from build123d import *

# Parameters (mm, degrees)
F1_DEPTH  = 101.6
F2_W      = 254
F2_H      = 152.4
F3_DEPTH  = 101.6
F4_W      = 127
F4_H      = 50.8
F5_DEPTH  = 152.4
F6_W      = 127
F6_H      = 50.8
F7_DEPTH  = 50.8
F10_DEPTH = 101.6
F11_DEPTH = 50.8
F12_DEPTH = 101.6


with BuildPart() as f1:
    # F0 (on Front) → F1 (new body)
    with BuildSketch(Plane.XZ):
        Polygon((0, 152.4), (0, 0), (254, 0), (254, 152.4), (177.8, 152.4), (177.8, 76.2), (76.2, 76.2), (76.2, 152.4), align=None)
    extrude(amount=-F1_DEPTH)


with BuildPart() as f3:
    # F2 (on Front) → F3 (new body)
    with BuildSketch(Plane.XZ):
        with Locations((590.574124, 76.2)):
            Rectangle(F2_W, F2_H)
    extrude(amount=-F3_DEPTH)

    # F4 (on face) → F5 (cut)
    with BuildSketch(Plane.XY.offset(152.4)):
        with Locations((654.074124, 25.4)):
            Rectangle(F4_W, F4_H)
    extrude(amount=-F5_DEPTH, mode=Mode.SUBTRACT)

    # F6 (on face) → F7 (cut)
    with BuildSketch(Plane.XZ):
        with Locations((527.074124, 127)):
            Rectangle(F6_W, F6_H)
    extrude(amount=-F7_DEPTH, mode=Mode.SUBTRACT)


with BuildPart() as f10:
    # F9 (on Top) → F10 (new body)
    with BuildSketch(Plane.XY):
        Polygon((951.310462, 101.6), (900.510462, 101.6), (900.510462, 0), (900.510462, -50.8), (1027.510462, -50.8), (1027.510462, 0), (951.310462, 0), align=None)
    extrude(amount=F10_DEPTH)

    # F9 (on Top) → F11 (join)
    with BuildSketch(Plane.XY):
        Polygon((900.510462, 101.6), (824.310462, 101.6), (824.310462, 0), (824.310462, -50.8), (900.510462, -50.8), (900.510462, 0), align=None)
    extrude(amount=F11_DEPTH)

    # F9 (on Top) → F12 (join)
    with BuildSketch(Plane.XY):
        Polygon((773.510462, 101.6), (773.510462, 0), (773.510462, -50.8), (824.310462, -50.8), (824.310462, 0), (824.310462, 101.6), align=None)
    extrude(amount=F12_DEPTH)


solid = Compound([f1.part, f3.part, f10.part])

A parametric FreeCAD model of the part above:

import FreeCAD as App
import Part
import Sketcher

V = App.Vector
Q = App.Units.Quantity


def add_polygon(sketch, points):
    """Adds a closed chain of lines whose ends are joined by coincident constraints."""
    first, n = sketch.GeometryCount, len(points)
    for a, b in zip(points, points[1:] + points[:1]):
        sketch.addGeometry(Part.LineSegment(App.Vector(*a, 0), App.Vector(*b, 0)), False)
    for i in range(n):
        sketch.addConstraint(Sketcher.Constraint("Coincident", first + i, 2, first + (i + 1) % n, 1))

doc = App.newDocument("Part")
body = doc.addObject("PartDesign::Body", "Body")

# Sketch on XZ plane
sketch1 = body.newObject("Sketcher::SketchObject", "Sketch")
sketch1.AttachmentSupport = (doc.getObject("XZ_Plane"), [""])
sketch1.MapMode = "FlatFace"
add_polygon(sketch1, [(0, 152.4), (0, 0), (254, 0), (254, 152.4), (177.8, 152.4), (177.8, 76.2), (76.2, 76.2), (76.2, 152.4)])  # lines 0-7
sketch1.addConstraint([
    Sketcher.Constraint("Vertical", 0),
    Sketcher.Constraint("Horizontal", 1),
    Sketcher.Constraint("Vertical", 2),
    Sketcher.Constraint("Horizontal", 3),
    Sketcher.Constraint("Vertical", 4),
    Sketcher.Constraint("Horizontal", 5),
    Sketcher.Constraint("Vertical", 6),
    Sketcher.Constraint("Horizontal", 7),
    Sketcher.Constraint("Coincident", 0, 2, -1, 1),
    Sketcher.Constraint("Horizontal", 3, 2, 6, 2),
    Sketcher.Constraint("Equal", 3, 7),
    Sketcher.Constraint("Equal", 7, 4),
    Sketcher.Constraint("DistanceX", 1, 1, 1, 2, Q("10 in")),
    Sketcher.Constraint("DistanceX", 3, 2, 3, 1, Q("3 in")),
    Sketcher.Constraint("DistanceY", 0, 2, 0, 1, Q("6 in")),
])
pad1 = body.newObject("PartDesign::Pad", "Pad")
pad1.Profile = sketch1
pad1.Length = Q("4 in")
pad1.Reversed = True
body2 = doc.addObject("PartDesign::Body", "Body001")

# Sketch on XZ plane
sketch2 = body2.newObject("Sketcher::SketchObject", "Sketch001")
sketch2.AttachmentSupport = (doc.getObject("XZ_Plane001"), [""])
sketch2.MapMode = "FlatFace"
add_polygon(sketch2, [(463.574124, 152.4), (463.574124, 0), (717.574124, 0), (717.574124, 152.4)])  # lines 0-3
sketch2.addConstraint([
    Sketcher.Constraint("Vertical", 0),
    Sketcher.Constraint("Horizontal", 1),
    Sketcher.Constraint("Vertical", 2),
    Sketcher.Constraint("Horizontal", 3),
    Sketcher.Constraint("PointOnObject", 0, 2, -1),
    Sketcher.Constraint("DistanceX", 1, 1, 1, 2, Q("10 in")),
    Sketcher.Constraint("DistanceY", 0, 2, 0, 1, Q("6 in")),
    Sketcher.Constraint("DistanceX", -1, 1, 0, 2, Q("463.574124 mm")),
])
pad2 = body2.newObject("PartDesign::Pad", "Pad001")
pad2.Profile = sketch2
pad2.Length = Q("4 in")
pad2.Reversed = True

# Sketch on XY plane
sketch3 = body2.newObject("Sketcher::SketchObject", "Sketch002")
sketch3.AttachmentSupport = (doc.getObject("XY_Plane001"), [""])
sketch3.MapMode = "FlatFace"
sketch3.AttachmentOffset = App.Placement(V(0, 0, 6 * 25.4), App.Rotation())
add_polygon(sketch3, [(590.574124, 50.8), (590.574124, 0), (717.574124, 0), (717.574124, 50.8)])  # lines 0-3
sketch3.addConstraint([
    Sketcher.Constraint("Vertical", 0),
    Sketcher.Constraint("Horizontal", 1),
    Sketcher.Constraint("Vertical", 2),
    Sketcher.Constraint("Horizontal", 3),
    Sketcher.Constraint("PointOnObject", 0, 2, -1),
    Sketcher.Constraint("DistanceX", 1, 1, 1, 2, Q("5 in")),
    Sketcher.Constraint("DistanceY", 0, 2, 0, 1, Q("2 in")),
    Sketcher.Constraint("DistanceX", -1, 1, 0, 2, Q("590.574124 mm")),
])
pocket1 = body2.newObject("PartDesign::Pocket", "Pocket")
pocket1.Profile = sketch3
pocket1.Length = Q("6 in")

# Sketch on XZ plane
sketch4 = body2.newObject("Sketcher::SketchObject", "Sketch003")
sketch4.AttachmentSupport = (doc.getObject("XZ_Plane001"), [""])
sketch4.MapMode = "FlatFace"
add_polygon(sketch4, [(463.574124, 152.4), (463.574124, 101.6), (590.574124, 101.6), (590.574124, 152.4)])  # lines 0-3
sketch4.addConstraint([
    Sketcher.Constraint("Vertical", 0),
    Sketcher.Constraint("Horizontal", 1),
    Sketcher.Constraint("Vertical", 2),
    Sketcher.Constraint("Horizontal", 3),
    Sketcher.Constraint("DistanceX", 1, 1, 1, 2, Q("5 in")),
    Sketcher.Constraint("DistanceY", 0, 2, 0, 1, Q("2 in")),
    Sketcher.Constraint("DistanceY", -1, 1, 0, 2, Q("4 in")),
    Sketcher.Constraint("DistanceX", -1, 1, 0, 2, Q("463.574124 mm")),
])
pocket2 = body2.newObject("PartDesign::Pocket", "Pocket001")
pocket2.Profile = sketch4
pocket2.Length = Q("2 in")
body3 = doc.addObject("PartDesign::Body", "Body002")

# Sketch on XY plane
sketch5 = body3.newObject("Sketcher::SketchObject", "Sketch004")
sketch5.AttachmentSupport = (doc.getObject("XY_Plane002"), [""])
sketch5.MapMode = "FlatFace"
add_polygon(sketch5, [(951.310462, 101.6), (900.510462, 101.6), (900.510462, -50.8), (1027.510462, -50.8), (1027.510462, 0), (951.310462, 0)])  # lines 0-5
sketch5.addConstraint([
    Sketcher.Constraint("Horizontal", 0),
    Sketcher.Constraint("Vertical", 1),
    Sketcher.Constraint("Horizontal", 2),
    Sketcher.Constraint("Vertical", 3),
    Sketcher.Constraint("Horizontal", 4),
    Sketcher.Constraint("Vertical", 5),
    Sketcher.Constraint("PointOnObject", 3, 2, -1),
    Sketcher.Constraint("Equal", 0, 3),
    Sketcher.Constraint("DistanceX", 0, 2, 0, 1, Q("2 in")),
    Sketcher.Constraint("DistanceX", 2, 1, 2, 2, Q("5 in")),
    Sketcher.Constraint("DistanceY", 1, 2, 1, 1, Q("6 in")),
    Sketcher.Constraint("DistanceX", -1, 1, 0, 2, Q("900.510462 mm")),
])
pad3 = body3.newObject("PartDesign::Pad", "Pad002")
pad3.Profile = sketch5
pad3.Length = Q("4 in")

# Sketch on XY plane
sketch6 = body3.newObject("Sketcher::SketchObject", "Sketch005")
sketch6.AttachmentSupport = (doc.getObject("XY_Plane002"), [""])
sketch6.MapMode = "FlatFace"
add_polygon(sketch6, [(900.510462, 101.6), (824.310462, 101.6), (824.310462, -50.8), (900.510462, -50.8)])  # lines 0-3
sketch6.addConstraint([
    Sketcher.Constraint("Horizontal", 0),
    Sketcher.Constraint("Vertical", 1),
    Sketcher.Constraint("Horizontal", 2),
    Sketcher.Constraint("Vertical", 3),
    Sketcher.Constraint("DistanceX", 0, 2, 0, 1, Q("3 in")),
    Sketcher.Constraint("DistanceY", 1, 2, 1, 1, Q("6 in")),
    Sketcher.Constraint("DistanceY", -1, 1, 0, 2, Q("4 in")),
    Sketcher.Constraint("DistanceX", -1, 1, 0, 2, Q("824.310462 mm")),
])
pad4 = body3.newObject("PartDesign::Pad", "Pad003")
pad4.Profile = sketch6
pad4.Length = Q("2 in")

# Sketch on XY plane
sketch7 = body3.newObject("Sketcher::SketchObject", "Sketch006")
sketch7.AttachmentSupport = (doc.getObject("XY_Plane002"), [""])
sketch7.MapMode = "FlatFace"
add_polygon(sketch7, [(773.510462, 101.6), (773.510462, -50.8), (824.310462, -50.8), (824.310462, 101.6)])  # lines 0-3
sketch7.addConstraint([
    Sketcher.Constraint("Vertical", 0),
    Sketcher.Constraint("Horizontal", 1),
    Sketcher.Constraint("Vertical", 2),
    Sketcher.Constraint("Horizontal", 3),
    Sketcher.Constraint("DistanceX", 1, 1, 1, 2, Q("2 in")),
    Sketcher.Constraint("DistanceY", 0, 2, 0, 1, Q("6 in")),
    Sketcher.Constraint("DistanceY", 0, 2, -1, 1, Q("2 in")),
    Sketcher.Constraint("DistanceX", -1, 1, 0, 2, Q("773.510462 mm")),
])
pad5 = body3.newObject("PartDesign::Pad", "Pad004")
pad5.Profile = sketch7
pad5.Length = Q("4 in")

doc.recompute()
